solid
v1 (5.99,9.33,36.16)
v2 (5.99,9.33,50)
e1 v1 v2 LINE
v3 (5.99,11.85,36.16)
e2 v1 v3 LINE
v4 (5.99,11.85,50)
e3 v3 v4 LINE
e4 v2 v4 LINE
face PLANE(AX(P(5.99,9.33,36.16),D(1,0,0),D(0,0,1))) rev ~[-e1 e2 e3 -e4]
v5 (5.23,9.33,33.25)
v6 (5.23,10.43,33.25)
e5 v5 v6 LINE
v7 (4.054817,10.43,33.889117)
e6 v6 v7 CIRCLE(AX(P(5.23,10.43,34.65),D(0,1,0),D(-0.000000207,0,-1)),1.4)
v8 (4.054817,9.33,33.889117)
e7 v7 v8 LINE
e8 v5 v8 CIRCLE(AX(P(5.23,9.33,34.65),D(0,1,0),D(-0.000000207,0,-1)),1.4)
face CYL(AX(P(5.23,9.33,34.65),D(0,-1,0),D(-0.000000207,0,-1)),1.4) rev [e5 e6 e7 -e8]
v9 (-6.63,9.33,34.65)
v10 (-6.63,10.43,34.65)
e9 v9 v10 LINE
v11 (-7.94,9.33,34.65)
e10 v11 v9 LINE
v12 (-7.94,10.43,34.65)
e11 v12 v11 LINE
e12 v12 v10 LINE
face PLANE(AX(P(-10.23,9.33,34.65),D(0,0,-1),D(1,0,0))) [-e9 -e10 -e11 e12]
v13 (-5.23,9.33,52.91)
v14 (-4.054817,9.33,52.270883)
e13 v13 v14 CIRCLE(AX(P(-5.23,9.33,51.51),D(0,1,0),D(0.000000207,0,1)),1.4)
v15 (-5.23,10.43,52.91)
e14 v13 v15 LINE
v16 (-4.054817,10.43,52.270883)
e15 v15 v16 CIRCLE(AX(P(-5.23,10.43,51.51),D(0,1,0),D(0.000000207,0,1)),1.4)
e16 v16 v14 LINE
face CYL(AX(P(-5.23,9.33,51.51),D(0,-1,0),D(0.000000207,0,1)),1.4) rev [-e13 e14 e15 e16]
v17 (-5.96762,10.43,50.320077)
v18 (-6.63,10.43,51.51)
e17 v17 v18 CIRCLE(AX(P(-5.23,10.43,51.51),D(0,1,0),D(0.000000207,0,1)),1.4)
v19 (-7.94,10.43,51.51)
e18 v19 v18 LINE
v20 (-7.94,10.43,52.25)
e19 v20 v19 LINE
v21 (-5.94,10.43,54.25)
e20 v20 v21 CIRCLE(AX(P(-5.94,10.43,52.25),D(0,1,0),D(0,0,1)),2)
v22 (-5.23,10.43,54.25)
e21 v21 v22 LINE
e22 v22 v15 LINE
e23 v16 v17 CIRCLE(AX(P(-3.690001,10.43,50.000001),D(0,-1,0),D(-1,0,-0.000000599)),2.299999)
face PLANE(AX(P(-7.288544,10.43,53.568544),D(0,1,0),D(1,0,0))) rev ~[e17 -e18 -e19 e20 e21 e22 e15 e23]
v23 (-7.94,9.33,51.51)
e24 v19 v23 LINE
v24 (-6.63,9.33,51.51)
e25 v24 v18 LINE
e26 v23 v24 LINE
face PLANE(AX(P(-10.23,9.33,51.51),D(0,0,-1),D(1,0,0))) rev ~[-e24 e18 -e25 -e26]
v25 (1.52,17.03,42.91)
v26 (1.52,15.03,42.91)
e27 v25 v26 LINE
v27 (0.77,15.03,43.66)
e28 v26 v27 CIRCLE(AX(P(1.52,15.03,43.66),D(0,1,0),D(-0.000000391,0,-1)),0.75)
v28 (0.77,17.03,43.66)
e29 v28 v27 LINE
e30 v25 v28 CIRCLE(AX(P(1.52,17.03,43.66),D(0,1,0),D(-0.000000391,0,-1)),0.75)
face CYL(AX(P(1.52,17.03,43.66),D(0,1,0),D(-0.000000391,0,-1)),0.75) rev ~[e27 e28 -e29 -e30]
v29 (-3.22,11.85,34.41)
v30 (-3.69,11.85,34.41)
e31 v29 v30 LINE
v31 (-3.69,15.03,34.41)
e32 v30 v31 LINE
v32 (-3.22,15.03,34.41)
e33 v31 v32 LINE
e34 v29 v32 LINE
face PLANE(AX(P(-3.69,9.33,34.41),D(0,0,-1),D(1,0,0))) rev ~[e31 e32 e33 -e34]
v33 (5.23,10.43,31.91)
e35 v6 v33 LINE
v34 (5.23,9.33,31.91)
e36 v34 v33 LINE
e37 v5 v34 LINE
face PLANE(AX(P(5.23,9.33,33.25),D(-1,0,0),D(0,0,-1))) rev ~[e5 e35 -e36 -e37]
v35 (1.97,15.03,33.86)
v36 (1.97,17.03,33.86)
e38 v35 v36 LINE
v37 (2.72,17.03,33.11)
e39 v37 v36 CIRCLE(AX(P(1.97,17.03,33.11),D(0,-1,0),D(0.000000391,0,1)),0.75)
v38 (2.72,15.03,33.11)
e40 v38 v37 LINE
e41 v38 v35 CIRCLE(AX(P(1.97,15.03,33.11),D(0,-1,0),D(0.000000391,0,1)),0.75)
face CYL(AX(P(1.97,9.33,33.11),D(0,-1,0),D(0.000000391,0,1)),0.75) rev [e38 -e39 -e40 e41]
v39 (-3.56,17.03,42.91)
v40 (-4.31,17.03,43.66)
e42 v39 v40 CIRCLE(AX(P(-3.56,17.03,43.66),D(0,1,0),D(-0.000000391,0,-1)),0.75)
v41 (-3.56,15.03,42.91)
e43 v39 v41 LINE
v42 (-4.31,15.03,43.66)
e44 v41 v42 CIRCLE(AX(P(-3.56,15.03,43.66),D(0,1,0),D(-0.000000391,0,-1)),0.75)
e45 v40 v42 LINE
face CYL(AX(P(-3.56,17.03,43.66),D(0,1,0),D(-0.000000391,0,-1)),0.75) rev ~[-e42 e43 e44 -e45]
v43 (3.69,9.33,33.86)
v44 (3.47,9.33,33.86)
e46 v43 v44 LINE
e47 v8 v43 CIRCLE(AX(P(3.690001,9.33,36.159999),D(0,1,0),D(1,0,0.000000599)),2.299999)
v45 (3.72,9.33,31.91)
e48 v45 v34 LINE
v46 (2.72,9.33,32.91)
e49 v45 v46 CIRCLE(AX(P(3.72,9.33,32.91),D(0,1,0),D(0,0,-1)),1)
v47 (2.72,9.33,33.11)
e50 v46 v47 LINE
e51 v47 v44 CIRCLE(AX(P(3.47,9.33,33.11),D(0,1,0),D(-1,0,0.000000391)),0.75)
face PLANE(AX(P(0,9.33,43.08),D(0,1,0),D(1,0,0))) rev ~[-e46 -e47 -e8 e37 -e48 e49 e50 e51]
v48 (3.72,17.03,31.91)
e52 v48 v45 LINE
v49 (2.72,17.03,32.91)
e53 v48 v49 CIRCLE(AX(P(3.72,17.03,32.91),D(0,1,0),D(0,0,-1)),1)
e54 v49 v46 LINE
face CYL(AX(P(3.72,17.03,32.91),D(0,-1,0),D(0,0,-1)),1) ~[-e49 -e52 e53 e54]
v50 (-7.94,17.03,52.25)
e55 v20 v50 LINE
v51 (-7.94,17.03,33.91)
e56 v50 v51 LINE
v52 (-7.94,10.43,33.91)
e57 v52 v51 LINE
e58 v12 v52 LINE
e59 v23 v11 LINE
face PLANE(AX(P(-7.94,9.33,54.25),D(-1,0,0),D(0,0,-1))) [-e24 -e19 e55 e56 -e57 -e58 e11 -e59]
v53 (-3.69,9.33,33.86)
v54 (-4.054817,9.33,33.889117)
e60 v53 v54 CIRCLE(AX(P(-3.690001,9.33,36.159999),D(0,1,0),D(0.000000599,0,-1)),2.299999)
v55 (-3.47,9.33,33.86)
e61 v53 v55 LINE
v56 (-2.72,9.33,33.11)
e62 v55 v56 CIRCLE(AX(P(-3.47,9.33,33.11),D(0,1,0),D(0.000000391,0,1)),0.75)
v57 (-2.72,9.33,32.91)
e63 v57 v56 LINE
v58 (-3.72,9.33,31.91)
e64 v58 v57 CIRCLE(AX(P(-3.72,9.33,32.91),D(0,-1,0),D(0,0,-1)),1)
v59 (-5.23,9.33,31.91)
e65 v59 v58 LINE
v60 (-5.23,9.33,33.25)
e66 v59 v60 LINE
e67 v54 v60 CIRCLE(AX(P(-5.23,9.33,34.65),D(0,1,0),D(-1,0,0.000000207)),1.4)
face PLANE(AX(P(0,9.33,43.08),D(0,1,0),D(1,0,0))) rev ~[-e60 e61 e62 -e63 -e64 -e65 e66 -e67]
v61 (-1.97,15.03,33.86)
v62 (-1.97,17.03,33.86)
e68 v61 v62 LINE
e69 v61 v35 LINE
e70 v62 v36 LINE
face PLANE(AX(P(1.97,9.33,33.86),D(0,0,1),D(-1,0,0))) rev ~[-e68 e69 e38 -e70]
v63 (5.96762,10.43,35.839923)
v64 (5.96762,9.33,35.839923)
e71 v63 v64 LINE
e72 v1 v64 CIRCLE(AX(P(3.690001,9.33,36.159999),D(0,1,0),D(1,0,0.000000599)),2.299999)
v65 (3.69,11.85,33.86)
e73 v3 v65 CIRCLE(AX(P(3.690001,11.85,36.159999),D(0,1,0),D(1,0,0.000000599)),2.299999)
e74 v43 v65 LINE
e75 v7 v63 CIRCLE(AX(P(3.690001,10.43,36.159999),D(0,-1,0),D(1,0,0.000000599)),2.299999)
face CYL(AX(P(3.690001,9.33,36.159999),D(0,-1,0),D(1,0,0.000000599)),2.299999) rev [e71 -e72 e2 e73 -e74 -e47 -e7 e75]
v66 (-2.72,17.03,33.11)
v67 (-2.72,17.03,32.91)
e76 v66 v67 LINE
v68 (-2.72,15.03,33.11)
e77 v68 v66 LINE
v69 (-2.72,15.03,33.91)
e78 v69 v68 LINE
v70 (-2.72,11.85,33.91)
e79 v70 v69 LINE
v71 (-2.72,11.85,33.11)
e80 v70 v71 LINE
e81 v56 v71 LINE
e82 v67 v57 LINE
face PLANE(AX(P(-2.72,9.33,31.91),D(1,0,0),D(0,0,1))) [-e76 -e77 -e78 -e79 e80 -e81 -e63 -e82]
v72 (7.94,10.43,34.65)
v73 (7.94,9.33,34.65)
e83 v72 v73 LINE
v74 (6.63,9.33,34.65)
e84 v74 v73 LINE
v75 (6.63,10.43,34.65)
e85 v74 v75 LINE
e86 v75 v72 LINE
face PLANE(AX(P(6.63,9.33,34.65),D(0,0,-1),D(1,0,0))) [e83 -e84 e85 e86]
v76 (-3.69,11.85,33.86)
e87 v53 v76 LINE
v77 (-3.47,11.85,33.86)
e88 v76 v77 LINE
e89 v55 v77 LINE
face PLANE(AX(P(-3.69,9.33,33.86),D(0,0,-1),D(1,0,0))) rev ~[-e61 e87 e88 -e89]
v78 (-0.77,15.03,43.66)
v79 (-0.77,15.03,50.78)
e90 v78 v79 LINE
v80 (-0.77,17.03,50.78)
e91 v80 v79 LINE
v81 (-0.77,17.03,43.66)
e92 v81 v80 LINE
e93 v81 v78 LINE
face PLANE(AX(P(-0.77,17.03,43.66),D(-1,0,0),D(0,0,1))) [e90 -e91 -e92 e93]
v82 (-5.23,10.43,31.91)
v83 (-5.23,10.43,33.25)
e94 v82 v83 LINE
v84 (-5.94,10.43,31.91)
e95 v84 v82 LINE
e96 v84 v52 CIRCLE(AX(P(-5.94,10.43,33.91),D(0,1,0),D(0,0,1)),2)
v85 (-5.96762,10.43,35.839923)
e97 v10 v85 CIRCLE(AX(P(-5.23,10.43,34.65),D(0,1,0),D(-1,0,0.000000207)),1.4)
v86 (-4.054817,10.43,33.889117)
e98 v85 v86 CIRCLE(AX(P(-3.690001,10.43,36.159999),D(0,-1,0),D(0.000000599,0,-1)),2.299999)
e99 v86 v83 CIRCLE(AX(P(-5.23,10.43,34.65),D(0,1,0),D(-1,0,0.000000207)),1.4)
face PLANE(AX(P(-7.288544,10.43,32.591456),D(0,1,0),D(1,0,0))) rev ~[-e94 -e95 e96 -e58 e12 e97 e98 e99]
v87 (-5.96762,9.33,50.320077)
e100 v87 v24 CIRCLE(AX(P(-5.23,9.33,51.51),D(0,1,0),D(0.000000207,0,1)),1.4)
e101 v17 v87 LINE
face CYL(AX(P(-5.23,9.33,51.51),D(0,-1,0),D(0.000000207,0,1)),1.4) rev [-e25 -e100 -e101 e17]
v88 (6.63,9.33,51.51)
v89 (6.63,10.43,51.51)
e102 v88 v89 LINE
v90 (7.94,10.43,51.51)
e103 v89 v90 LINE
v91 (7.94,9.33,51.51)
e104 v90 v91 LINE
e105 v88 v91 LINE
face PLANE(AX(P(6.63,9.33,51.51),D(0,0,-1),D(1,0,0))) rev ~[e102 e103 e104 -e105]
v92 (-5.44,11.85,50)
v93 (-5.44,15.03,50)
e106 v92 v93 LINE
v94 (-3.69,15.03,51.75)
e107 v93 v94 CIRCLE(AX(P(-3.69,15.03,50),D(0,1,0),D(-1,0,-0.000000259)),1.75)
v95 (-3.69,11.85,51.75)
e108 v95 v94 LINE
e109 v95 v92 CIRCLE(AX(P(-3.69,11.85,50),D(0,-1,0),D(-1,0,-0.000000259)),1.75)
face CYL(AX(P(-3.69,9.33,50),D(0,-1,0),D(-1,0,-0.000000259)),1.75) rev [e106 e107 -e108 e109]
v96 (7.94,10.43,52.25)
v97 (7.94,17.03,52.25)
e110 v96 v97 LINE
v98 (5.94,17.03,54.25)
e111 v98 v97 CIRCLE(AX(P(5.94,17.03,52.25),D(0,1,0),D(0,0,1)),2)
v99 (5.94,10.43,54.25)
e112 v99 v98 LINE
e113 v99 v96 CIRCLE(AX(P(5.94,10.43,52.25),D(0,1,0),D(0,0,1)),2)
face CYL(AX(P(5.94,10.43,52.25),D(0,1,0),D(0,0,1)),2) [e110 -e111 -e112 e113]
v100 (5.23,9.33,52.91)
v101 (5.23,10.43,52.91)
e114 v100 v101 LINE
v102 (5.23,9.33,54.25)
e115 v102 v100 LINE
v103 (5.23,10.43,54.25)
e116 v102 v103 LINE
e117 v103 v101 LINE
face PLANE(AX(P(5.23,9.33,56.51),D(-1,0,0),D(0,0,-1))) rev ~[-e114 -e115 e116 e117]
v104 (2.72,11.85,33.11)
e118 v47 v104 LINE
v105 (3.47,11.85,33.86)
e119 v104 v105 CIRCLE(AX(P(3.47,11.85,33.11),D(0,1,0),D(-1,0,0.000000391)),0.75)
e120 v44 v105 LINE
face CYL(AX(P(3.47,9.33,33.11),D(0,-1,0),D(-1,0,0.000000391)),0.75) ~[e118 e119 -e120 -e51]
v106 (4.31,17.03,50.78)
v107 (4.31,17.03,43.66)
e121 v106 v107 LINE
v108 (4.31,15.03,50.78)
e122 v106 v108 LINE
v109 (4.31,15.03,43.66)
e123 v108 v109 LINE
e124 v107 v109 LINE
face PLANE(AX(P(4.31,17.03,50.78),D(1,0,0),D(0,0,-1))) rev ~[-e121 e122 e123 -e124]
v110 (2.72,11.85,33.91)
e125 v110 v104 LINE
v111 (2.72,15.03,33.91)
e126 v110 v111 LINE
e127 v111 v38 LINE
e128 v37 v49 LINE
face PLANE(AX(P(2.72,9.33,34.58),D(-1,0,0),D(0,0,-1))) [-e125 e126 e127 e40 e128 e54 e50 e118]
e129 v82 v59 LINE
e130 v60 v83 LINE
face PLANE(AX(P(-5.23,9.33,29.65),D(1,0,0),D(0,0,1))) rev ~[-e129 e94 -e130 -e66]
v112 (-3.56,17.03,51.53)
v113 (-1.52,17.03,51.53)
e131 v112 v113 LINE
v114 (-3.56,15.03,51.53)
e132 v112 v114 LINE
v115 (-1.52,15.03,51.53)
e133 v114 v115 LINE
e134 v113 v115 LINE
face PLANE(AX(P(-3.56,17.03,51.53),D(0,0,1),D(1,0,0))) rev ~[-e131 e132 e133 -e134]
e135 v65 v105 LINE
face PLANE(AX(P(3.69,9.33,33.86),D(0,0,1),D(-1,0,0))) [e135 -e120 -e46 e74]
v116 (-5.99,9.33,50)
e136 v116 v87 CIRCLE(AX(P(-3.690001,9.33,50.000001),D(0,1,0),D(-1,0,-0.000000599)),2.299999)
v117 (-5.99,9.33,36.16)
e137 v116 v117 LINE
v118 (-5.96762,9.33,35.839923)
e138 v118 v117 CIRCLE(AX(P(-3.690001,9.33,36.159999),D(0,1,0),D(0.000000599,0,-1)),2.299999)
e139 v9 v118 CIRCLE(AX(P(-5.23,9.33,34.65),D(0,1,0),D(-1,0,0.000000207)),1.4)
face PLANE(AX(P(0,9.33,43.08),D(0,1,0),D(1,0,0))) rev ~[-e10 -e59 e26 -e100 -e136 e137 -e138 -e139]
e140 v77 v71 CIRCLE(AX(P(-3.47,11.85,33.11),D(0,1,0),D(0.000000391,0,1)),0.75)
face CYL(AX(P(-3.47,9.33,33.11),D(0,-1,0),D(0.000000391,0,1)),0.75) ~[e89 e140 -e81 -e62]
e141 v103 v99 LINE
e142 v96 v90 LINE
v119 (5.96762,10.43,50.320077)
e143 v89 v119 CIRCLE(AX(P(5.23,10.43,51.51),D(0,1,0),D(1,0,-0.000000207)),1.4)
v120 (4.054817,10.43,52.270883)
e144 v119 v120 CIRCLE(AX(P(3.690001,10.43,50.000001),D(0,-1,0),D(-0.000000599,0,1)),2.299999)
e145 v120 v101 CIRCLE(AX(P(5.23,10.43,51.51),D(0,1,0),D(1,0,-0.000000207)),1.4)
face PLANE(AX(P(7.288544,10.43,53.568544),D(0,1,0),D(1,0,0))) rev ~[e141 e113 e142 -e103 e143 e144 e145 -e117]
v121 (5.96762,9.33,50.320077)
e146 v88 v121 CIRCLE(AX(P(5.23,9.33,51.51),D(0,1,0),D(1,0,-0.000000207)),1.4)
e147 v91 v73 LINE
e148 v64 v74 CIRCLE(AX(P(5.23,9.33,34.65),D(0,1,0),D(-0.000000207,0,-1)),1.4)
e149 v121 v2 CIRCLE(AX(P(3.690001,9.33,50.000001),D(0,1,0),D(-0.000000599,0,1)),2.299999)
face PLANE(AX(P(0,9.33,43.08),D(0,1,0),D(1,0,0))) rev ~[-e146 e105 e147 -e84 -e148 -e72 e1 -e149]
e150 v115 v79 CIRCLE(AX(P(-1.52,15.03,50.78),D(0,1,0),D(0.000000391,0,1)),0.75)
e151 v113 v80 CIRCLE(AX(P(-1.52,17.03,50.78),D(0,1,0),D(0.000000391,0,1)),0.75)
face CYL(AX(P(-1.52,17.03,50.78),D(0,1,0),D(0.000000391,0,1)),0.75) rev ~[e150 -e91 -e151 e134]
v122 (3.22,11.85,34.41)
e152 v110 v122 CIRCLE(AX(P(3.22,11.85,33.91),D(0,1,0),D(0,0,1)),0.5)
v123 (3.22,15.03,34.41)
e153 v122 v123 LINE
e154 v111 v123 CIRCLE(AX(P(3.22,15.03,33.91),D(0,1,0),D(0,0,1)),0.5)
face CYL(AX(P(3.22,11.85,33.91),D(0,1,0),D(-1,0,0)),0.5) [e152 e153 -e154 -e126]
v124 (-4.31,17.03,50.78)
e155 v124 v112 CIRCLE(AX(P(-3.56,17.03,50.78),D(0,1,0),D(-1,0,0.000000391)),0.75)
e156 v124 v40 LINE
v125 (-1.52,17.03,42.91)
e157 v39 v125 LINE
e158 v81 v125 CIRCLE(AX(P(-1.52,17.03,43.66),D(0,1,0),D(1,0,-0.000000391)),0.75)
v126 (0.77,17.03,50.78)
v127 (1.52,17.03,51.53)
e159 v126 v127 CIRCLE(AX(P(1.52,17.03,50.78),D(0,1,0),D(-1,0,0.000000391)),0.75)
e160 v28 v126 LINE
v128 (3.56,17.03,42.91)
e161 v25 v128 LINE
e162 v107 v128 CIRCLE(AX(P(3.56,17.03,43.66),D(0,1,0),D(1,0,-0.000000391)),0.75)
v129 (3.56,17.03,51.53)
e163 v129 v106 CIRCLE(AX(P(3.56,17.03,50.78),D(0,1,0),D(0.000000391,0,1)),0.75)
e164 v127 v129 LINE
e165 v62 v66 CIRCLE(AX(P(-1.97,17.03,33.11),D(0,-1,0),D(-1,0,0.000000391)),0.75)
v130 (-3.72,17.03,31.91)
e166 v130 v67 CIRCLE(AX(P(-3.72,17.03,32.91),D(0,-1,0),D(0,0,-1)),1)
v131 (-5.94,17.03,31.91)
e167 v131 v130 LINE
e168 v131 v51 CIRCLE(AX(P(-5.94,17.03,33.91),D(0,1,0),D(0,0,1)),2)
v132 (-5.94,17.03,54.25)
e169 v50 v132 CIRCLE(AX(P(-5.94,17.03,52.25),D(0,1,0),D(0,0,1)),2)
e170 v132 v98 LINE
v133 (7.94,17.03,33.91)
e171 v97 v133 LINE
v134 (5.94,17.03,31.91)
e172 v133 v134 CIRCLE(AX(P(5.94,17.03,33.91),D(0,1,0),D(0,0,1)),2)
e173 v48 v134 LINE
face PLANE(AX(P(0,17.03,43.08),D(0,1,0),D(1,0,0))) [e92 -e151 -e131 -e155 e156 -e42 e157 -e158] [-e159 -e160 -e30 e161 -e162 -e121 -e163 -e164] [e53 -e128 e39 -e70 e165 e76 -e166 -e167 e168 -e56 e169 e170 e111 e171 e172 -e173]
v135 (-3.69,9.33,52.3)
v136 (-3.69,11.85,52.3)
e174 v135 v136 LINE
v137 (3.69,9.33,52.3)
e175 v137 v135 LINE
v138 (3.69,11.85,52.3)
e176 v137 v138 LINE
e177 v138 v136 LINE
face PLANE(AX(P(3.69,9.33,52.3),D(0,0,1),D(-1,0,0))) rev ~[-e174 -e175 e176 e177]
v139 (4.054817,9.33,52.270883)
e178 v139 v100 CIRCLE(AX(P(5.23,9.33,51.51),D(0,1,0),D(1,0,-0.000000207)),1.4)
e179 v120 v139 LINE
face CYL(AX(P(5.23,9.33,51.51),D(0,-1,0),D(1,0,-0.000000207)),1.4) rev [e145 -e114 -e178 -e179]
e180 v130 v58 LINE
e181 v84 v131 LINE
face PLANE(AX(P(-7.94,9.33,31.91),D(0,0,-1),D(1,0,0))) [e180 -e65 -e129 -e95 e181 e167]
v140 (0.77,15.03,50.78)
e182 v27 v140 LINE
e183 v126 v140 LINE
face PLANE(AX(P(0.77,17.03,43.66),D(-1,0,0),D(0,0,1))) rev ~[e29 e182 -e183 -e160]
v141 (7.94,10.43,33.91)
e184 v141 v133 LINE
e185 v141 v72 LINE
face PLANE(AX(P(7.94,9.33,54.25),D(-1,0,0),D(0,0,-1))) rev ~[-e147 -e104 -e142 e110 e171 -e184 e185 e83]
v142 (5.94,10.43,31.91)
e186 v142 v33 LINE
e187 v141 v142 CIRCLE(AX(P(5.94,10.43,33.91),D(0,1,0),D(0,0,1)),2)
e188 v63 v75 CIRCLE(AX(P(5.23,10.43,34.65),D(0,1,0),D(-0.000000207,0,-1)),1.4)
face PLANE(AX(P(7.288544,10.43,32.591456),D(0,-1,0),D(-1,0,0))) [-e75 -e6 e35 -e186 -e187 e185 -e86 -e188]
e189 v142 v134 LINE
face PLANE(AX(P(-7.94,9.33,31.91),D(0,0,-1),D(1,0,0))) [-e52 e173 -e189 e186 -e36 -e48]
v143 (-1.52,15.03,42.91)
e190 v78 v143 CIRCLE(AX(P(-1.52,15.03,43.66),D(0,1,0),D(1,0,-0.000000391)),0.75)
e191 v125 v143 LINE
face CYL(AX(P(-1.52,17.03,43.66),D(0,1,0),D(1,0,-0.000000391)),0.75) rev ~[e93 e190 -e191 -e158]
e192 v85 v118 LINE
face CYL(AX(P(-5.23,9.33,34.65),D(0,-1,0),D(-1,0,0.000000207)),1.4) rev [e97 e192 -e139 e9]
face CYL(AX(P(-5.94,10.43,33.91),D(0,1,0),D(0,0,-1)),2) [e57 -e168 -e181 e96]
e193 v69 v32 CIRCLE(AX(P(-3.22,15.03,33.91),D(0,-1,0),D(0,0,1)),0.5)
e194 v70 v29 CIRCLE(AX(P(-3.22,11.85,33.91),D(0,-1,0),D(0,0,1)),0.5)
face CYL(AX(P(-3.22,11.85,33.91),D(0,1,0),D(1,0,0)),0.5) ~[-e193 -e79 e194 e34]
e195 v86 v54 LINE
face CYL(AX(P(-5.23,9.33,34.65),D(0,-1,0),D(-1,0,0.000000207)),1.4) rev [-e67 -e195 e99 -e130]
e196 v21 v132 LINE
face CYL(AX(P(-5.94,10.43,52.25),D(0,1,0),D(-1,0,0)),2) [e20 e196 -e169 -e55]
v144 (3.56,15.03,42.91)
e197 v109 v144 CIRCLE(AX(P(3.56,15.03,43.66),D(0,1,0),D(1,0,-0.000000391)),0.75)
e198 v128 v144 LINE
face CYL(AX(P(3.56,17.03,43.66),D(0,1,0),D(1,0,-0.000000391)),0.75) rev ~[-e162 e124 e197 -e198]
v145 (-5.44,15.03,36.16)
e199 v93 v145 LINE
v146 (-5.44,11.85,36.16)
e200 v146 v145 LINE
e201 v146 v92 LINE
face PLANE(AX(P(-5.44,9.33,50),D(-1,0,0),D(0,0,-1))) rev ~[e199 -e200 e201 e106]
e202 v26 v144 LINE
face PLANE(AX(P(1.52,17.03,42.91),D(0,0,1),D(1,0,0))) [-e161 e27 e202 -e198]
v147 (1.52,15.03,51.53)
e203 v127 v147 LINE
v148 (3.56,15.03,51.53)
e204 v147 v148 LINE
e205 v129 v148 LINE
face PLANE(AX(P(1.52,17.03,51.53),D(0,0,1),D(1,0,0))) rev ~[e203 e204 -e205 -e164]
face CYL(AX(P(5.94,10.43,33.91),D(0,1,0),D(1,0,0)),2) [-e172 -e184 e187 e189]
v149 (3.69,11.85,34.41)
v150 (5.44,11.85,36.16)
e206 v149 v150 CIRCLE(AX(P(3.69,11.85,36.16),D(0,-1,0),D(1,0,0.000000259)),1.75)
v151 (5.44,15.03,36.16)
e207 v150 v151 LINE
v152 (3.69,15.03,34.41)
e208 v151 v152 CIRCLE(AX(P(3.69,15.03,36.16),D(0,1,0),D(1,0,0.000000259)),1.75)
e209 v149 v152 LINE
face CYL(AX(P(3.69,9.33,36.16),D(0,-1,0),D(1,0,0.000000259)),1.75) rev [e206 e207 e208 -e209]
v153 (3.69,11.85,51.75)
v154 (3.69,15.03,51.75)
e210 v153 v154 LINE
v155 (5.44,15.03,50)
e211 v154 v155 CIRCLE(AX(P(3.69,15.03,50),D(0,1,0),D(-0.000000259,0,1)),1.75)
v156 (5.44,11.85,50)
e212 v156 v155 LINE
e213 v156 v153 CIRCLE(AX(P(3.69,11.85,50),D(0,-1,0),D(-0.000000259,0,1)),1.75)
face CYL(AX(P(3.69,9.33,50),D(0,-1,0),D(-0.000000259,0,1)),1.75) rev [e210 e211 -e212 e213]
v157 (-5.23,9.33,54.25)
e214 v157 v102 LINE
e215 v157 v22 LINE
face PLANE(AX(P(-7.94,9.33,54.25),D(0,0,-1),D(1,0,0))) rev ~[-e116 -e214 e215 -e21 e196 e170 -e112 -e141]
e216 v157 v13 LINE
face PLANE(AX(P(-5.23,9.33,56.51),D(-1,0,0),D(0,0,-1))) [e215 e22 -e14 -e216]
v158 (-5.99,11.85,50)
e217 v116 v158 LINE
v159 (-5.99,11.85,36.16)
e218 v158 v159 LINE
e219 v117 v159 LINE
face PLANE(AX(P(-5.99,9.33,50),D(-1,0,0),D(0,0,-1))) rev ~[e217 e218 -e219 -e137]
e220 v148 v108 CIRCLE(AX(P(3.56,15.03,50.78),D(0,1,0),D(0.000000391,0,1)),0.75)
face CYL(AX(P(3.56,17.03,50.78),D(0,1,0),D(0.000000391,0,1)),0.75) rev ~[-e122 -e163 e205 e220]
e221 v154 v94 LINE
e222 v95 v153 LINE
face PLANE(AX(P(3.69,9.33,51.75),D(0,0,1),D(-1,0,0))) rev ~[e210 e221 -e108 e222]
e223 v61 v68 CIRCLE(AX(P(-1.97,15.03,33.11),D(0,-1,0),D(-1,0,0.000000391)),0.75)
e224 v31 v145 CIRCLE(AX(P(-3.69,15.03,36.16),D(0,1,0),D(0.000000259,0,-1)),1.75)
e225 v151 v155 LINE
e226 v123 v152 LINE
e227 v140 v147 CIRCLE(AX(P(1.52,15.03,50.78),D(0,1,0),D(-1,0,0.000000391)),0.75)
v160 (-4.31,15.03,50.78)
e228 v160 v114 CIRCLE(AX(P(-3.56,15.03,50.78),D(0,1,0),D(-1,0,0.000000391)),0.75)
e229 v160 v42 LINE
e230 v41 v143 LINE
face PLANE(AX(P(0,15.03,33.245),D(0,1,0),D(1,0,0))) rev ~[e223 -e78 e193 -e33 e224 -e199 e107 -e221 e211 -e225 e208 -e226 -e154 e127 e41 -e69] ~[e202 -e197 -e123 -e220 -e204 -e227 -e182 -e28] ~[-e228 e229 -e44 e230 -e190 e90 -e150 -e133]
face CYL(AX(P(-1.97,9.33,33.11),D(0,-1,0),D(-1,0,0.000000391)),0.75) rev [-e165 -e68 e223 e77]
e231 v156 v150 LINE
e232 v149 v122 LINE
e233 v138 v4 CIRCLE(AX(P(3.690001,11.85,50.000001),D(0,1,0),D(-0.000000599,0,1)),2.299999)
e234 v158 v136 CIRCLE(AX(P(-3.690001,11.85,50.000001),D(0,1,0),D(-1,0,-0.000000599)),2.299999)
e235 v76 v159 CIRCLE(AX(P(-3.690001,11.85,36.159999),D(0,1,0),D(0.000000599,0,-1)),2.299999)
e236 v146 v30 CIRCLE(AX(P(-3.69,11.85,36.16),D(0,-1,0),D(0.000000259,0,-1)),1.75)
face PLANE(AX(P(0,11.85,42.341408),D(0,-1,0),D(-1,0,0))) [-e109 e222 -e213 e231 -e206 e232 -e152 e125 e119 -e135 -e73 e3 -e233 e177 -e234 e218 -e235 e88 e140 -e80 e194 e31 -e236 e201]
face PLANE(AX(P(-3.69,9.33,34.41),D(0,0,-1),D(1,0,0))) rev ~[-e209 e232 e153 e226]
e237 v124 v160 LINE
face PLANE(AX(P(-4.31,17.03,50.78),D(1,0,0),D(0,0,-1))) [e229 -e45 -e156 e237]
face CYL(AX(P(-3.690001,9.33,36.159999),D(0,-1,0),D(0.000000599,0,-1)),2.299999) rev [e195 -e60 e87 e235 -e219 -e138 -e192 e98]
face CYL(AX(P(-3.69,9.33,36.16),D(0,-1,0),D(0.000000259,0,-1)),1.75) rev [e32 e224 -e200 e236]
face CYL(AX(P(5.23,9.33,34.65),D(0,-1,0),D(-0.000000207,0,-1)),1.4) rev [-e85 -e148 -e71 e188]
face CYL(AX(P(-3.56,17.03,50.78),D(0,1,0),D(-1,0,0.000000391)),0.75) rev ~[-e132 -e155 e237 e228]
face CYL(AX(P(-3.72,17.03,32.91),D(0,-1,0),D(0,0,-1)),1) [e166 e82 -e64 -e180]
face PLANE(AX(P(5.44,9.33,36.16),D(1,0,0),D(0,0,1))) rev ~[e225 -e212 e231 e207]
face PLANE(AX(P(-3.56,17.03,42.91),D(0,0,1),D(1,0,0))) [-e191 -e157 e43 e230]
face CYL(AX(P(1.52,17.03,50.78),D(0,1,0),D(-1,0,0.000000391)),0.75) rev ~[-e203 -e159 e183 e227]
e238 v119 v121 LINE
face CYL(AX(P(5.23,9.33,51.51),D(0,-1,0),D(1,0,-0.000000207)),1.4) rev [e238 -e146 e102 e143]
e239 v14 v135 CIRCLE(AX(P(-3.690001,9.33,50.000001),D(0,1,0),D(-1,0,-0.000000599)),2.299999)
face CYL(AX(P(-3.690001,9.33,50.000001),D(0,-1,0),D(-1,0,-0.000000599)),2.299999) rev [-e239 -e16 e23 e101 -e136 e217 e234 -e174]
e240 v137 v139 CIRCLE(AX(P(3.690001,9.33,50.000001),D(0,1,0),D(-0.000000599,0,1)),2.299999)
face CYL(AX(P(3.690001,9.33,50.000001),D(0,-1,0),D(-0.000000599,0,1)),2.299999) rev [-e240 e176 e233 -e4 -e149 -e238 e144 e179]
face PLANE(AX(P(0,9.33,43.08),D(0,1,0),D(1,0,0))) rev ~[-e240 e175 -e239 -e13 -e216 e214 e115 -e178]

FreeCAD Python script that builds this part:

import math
import FreeCAD as App
import Part
import Sketcher

V = App.Vector


def edges_at(feature, points):
    """Names of the edges that pass closest to the given points."""
    edges = feature.Shape.Edges
    near = lambda p: min(range(len(edges)), key=lambda i: edges[i].distToShape(Part.Vertex(*p))[0])
    return sorted({f"Edge{near(p) + 1}" for p in points})


def add_polygon(sketch, points):
    """Adds a closed chain of lines whose ends are joined by coincident constraints."""
    first, n = sketch.GeometryCount, len(points)
    for a, b in zip(points, points[1:] + points[:1]):
        sketch.addGeometry(Part.LineSegment(App.Vector(*a, 0), App.Vector(*b, 0)), False)
    for i in range(n):
        sketch.addConstraint(Sketcher.Constraint("Coincident", first + i, 2, first + (i + 1) % n, 1))

doc = App.newDocument("Part")
body = doc.addObject("PartDesign::Body", "Body")

sketch1 = doc.addObject("Sketcher::SketchObject", "Sketch")
body.addObject(sketch1)
sketch1.AttachmentSupport = (doc.XY_Plane, [""])
sketch1.MapMode = "FlatFace"
add_polygon(sketch1, [(-8, 11), (-8, -11), (8, -11), (8, 11)])
sketch1.addConstraint(Sketcher.Constraint("Vertical", 0))
sketch1.addConstraint(Sketcher.Constraint("Horizontal", 1))
sketch1.addConstraint(Sketcher.Constraint("Vertical", 2))
sketch1.addConstraint(Sketcher.Constraint("Horizontal", 3))
sketch1.addConstraint(Sketcher.Constraint("Symmetric", 0, 2, 2, 2, -1, 1))
sketch1.addConstraint(Sketcher.Constraint("DistanceX", 1, 1, 1, 2, 15.88))
sketch1.addConstraint(Sketcher.Constraint("DistanceY", 0, 2, 0, 1, 22.34))
pad1 = doc.addObject("PartDesign::Pad", "Pad")
body.addObject(pad1)
pad1.Profile = sketch1
pad1.Length = 7.7

sketch2 = doc.addObject("Sketcher::SketchObject", "Sketch001")
body.addObject(sketch2)
sketch2.AttachmentSupport = (doc.XY_Plane, [""])
sketch2.MapMode = "FlatFace"
sketch2.addGeometry(Part.LineSegment(V(3.7, 8.7, 0), V(-3.7, 8.7, 0)), False)
sketch2.addGeometry(Part.ArcOfCircle(Part.Circle(V(-3.7, 6.9, 0), V(0, 0, 1), 1.7), math.radians(90), math.radians(180)), False)
sketch2.addGeometry(Part.LineSegment(V(-5.4, 6.9, 0), V(-5.4, -6.9, 0)), False)
sketch2.addGeometry(Part.ArcOfCircle(Part.Circle(V(-3.7, -6.9, 0), V(0, 0, 1), 1.7), math.radians(180), math.radians(270)), False)
sketch2.addGeometry(Part.LineSegment(V(-3.7, -8.7, 0), V(3.7, -8.7, 0)), False)
sketch2.addGeometry(Part.ArcOfCircle(Part.Circle(V(3.7, -6.9, 0), V(0, 0, 1), 1.7), math.radians(-90), math.radians(0)), False)
sketch2.addGeometry(Part.LineSegment(V(5.4, -6.9, 0), V(5.4, 6.9, 0)), False)
sketch2.addGeometry(Part.ArcOfCircle(Part.Circle(V(3.7, 6.9, 0), V(0, 0, 1), 1.7), math.radians(0), math.radians(90)), False)
sketch2.addConstraint(Sketcher.Constraint("Tangent", 0, 2, 1, 1))
sketch2.addConstraint(Sketcher.Constraint("Tangent", 1, 2, 2, 1))
sketch2.addConstraint(Sketcher.Constraint("Tangent", 2, 2, 3, 1))
sketch2.addConstraint(Sketcher.Constraint("Tangent", 3, 2, 4, 1))
sketch2.addConstraint(Sketcher.Constraint("Tangent", 4, 2, 5, 1))
sketch2.addConstraint(Sketcher.Constraint("Tangent", 5, 2, 6, 1))
sketch2.addConstraint(Sketcher.Constraint("Tangent", 6, 2, 7, 1))
sketch2.addConstraint(Sketcher.Constraint("Tangent", 7, 2, 0, 1))
sketch2.addConstraint(Sketcher.Constraint("Horizontal", 0))
sketch2.addConstraint(Sketcher.Constraint("Vertical", 2))
sketch2.addConstraint(Sketcher.Constraint("Horizontal", 4))
sketch2.addConstraint(Sketcher.Constraint("Vertical", 6))
sketch2.addConstraint(Sketcher.Constraint("Equal", 1, 3))
sketch2.addConstraint(Sketcher.Constraint("Equal", 3, 5))
sketch2.addConstraint(Sketcher.Constraint("Equal", 5, 7))
sketch2.addConstraint(Sketcher.Constraint("Symmetric", 1, 3, 5, 3, -1, 1))
sketch2.addConstraint(Sketcher.Constraint("Radius", 1, 1.75))
sketch2.addConstraint(Sketcher.Constraint("DistanceX", 0, 2, 0, 1, 7.38))
sketch2.addConstraint(Sketcher.Constraint("DistanceY", 2, 2, 2, 1, 13.84))
pocket1 = doc.addObject("PartDesign::Pocket", "Pocket")
body.addObject(pocket1)
pocket1.Profile = sketch2
pocket1.Length = 5.7
pocket1.Reversed = True

sketch3 = doc.addObject("Sketcher::SketchObject", "Sketch002")
body.addObject(sketch3)
sketch3.AttachmentSupport = (doc.XY_Plane, [""])
sketch3.MapMode = "FlatFace"
sketch3.addGeometry(Part.LineSegment(V(5.99, -6.92, 0), V(5.99, 6.92, 0)), False)
sketch3.addGeometry(Part.ArcOfCircle(Part.Circle(V(3.69, 6.92, 0), V(0, 0, 1), 2.3), math.radians(0), math.radians(90)), False)
sketch3.addGeometry(Part.LineSegment(V(3.69, 9.22, 0), V(3.47, 9.22, 0)), False)
sketch3.addGeometry(Part.ArcOfCircle(Part.Circle(V(3.47, 9.97, 0), V(0, 0, 1), 0.75), math.radians(-180), math.radians(-90)), False)
sketch3.addGeometry(Part.LineSegment(V(2.72, 9.97, 0), V(2.72, 11.17, 0)), False)
sketch3.addGeometry(Part.LineSegment(V(2.72, 11.17, 0), V(-2.72, 11.17, 0)), False)
sketch3.addGeometry(Part.LineSegment(V(-2.72, 11.17, 0), V(-2.72, 9.97, 0)), False)
sketch3.addGeometry(Part.ArcOfCircle(Part.Circle(V(-3.47, 9.97, 0), V(0, 0, 1), 0.75), math.radians(-90), math.radians(0)), False)
sketch3.addGeometry(Part.LineSegment(V(-3.47, 9.22, 0), V(-3.69, 9.22, 0)), False)
sketch3.addGeometry(Part.ArcOfCircle(Part.Circle(V(-3.69, 6.92, 0), V(0, 0, 1), 2.3), math.radians(90), math.radians(180)), False)
sketch3.addGeometry(Part.LineSegment(V(-5.99, 6.92, 0), V(-5.99, -6.92, 0)), False)
sketch3.addGeometry(Part.ArcOfCircle(Part.Circle(V(-3.69, -6.92, 0), V(0, 0, 1), 2.3), math.radians(180), math.radians(270)), False)
sketch3.addGeometry(Part.LineSegment(V(-3.69, -9.22, 0), V(3.69, -9.22, 0)), False)
sketch3.addGeometry(Part.ArcOfCircle(Part.Circle(V(3.69, -6.92, 0), V(0, 0, 1), 2.3), math.radians(-90), math.radians(0)), False)
sketch3.addConstraint(Sketcher.Constraint("Tangent", 0, 2, 1, 1))
sketch3.addConstraint(Sketcher.Constraint("Tangent", 1, 2, 2, 1))
sketch3.addConstraint(Sketcher.Constraint("Tangent", 2, 2, 3, 2))
sketch3.addConstraint(Sketcher.Constraint("Tangent", 3, 1, 4, 1))
sketch3.addConstraint(Sketcher.Constraint("Coincident", 4, 2, 5, 1))
sketch3.addConstraint(Sketcher.Constraint("Coincident", 5, 2, 6, 1))
sketch3.addConstraint(Sketcher.Constraint("Tangent", 6, 2, 7, 2))
sketch3.addConstraint(Sketcher.Constraint("Tangent", 7, 1, 8, 1))
sketch3.addConstraint(Sketcher.Constraint("Tangent", 8, 2, 9, 1))
sketch3.addConstraint(Sketcher.Constraint("Tangent", 9, 2, 10, 1))
sketch3.addConstraint(Sketcher.Constraint("Tangent", 10, 2, 11, 1))
sketch3.addConstraint(Sketcher.Constraint("Tangent", 11, 2, 12, 1))
sketch3.addConstraint(Sketcher.Constraint("Tangent", 12, 2, 13, 1))
sketch3.addConstraint(Sketcher.Constraint("Tangent", 13, 2, 0, 1))
sketch3.addConstraint(Sketcher.Constraint("Vertical", 0))
sketch3.addConstraint(Sketcher.Constraint("Horizontal", 2))
sketch3.addConstraint(Sketcher.Constraint("Vertical", 4))
sketch3.addConstraint(Sketcher.Constraint("Horizontal", 5))
sketch3.addConstraint(Sketcher.Constraint("Vertical", 6))
sketch3.addConstraint(Sketcher.Constraint("Horizontal", 8))
sketch3.addConstraint(Sketcher.Constraint("Vertical", 10))
sketch3.addConstraint(Sketcher.Constraint("Horizontal", 12))
sketch3.addConstraint(Sketcher.Constraint("Equal", 3, 7))
sketch3.addConstraint(Sketcher.Constraint("Equal", 1, 9))
sketch3.addConstraint(Sketcher.Constraint("Equal", 9, 11))
sketch3.addConstraint(Sketcher.Constraint("Equal", 11, 13))
sketch3.addConstraint(Sketcher.Constraint("Symmetric", 1, 3, 11, 3, -1, 1))
sketch3.addConstraint(Sketcher.Constraint("Symmetric", 3, 3, 7, 3, -2))
sketch3.addConstraint(Sketcher.Constraint("Radius", 1, 2.299999))
sketch3.addConstraint(Sketcher.Constraint("Radius", 3, 0.75))
sketch3.addConstraint(Sketcher.Constraint("DistanceY", 4, 1, 4, 2, 1.2))
sketch3.addConstraint(Sketcher.Constraint("DistanceX", 2, 2, 2, 1, 0.22))
sketch3.addConstraint(Sketcher.Constraint("DistanceX", 5, 2, 5, 1, 5.44))
sketch3.addConstraint(Sketcher.Constraint("DistanceY", 0, 1, 0, 2, 13.84))
pocket2 = doc.addObject("PartDesign::Pocket", "Pocket001")
body.addObject(pocket2)
pocket2.Profile = sketch3
pocket2.Length = 2.52
pocket2.Reversed = True

sketch4 = doc.addObject("Sketcher::SketchObject", "Sketch003")
body.addObject(sketch4)
sketch4.AttachmentSupport = (doc.XY_Plane, [""])
sketch4.MapMode = "FlatFace"
add_polygon(sketch4, [(-2.7, 11.2), (-2.7, 8.5), (2.7, 8.5), (2.7, 11.2)])
sketch4.addConstraint(Sketcher.Constraint("Vertical", 0))
sketch4.addConstraint(Sketcher.Constraint("Horizontal", 1))
sketch4.addConstraint(Sketcher.Constraint("Vertical", 2))
sketch4.addConstraint(Sketcher.Constraint("Horizontal", 3))
sketch4.addConstraint(Sketcher.Constraint("DistanceX", 1, 1, 1, 2, 5.44))
sketch4.addConstraint(Sketcher.Constraint("DistanceY", 0, 2, 0, 1, 2.67))
sketch4.addConstraint(Sketcher.Constraint("DistanceY", -1, 1, 0, 2, 8.5))
sketch4.addConstraint(Sketcher.Constraint("DistanceX", 0, 2, -1, 1, 2.72))
pocket3 = doc.addObject("PartDesign::Pocket", "Pocket002")
body.addObject(pocket3)
pocket3.Profile = sketch4
pocket3.Length = 5.7
pocket3.Reversed = True

sketch5 = doc.addObject("Sketcher::SketchObject", "Sketch004")
body.addObject(sketch5)
sketch5.AttachmentSupport = (doc.XY_Plane, [""])
sketch5.MapMode = "FlatFace"
sketch5.addGeometry(Part.LineSegment(V(2.7, 10, 0), V(2.7, 11.2, 0)), False)
sketch5.addGeometry(Part.LineSegment(V(2.7, 11.2, 0), V(-2.7, 11.2, 0)), False)
sketch5.addGeometry(Part.LineSegment(V(-2.7, 11.2, 0), V(-2.7, 10, 0)), False)
sketch5.addGeometry(Part.ArcOfCircle(Part.Circle(V(-2, 10, 0), V(0, 0, 1), 0.8), math.radians(-180), math.radians(-90)), False)
sketch5.addGeometry(Part.LineSegment(V(-2, 9.2, 0), V(2, 9.2, 0)), False)
sketch5.addGeometry(Part.ArcOfCircle(Part.Circle(V(2, 10, 0), V(0, 0, 1), 0.8), math.radians(-90), math.radians(0)), False)
sketch5.addConstraint(Sketcher.Constraint("Coincident", 0, 2, 1, 1))
sketch5.addConstraint(Sketcher.Constraint("Coincident", 1, 2, 2, 1))
sketch5.addConstraint(Sketcher.Constraint("Tangent", 2, 2, 3, 1))
sketch5.addConstraint(Sketcher.Constraint("Tangent", 3, 2, 4, 1))
sketch5.addConstraint(Sketcher.Constraint("Tangent", 4, 2, 5, 1))
sketch5.addConstraint(Sketcher.Constraint("Tangent", 5, 2, 0, 1))
sketch5.addConstraint(Sketcher.Constraint("Vertical", 0))
sketch5.addConstraint(Sketcher.Constraint("Horizontal", 1))
sketch5.addConstraint(Sketcher.Constraint("Vertical", 2))
sketch5.addConstraint(Sketcher.Constraint("Horizontal", 4))
sketch5.addConstraint(Sketcher.Constraint("Equal", 3, 5))
sketch5.addConstraint(Sketcher.Constraint("Radius", 3, 0.75))
sketch5.addConstraint(Sketcher.Constraint("DistanceY", 0, 1, 0, 2, 1.2))
sketch5.addConstraint(Sketcher.Constraint("DistanceX", 1, 2, 1, 1, 5.44))
sketch5.addConstraint(Sketcher.Constraint("DistanceX", 3, 3, -1, 1, 1.97))
sketch5.addConstraint(Sketcher.Constraint("DistanceY", -1, 1, 3, 3, 9.97))
pocket4 = doc.addObject("PartDesign::Pocket", "Pocket003")
body.addObject(pocket4)
pocket4.Profile = sketch5
pocket4.Type = "ThroughAll"
pocket4.Reversed = True

sketch6 = doc.addObject("Sketcher::SketchObject", "Sketch005")
body.addObject(sketch6)
sketch6.AttachmentSupport = (doc.XY_Plane, [""])
sketch6.MapMode = "FlatFace"
sketch6.AttachmentOffset = App.Placement(V(0, 0, 7.7), App.Rotation())
sketch6.addGeometry(Part.LineSegment(V(-0.8, -7.7, 0), V(-0.8, -0.6, 0)), False)
sketch6.addGeometry(Part.ArcOfCircle(Part.Circle(V(-1.5, -0.6, 0), V(0, 0, 1), 0.8), math.radians(0), math.radians(90)), False)
sketch6.addGeometry(Part.LineSegment(V(-1.5, 0.2, 0), V(-3.6, 0.2, 0)), False)
sketch6.addGeometry(Part.ArcOfCircle(Part.Circle(V(-3.6, -0.6, 0), V(0, 0, 1), 0.8), math.radians(90), math.radians(180)), False)
sketch6.addGeometry(Part.LineSegment(V(-4.3, -0.6, 0), V(-4.3, -7.7, 0)), False)
sketch6.addGeometry(Part.ArcOfCircle(Part.Circle(V(-3.6, -7.7, 0), V(0, 0, 1), 0.8), math.radians(-180), math.radians(-90)), False)
sketch6.addGeometry(Part.LineSegment(V(-3.6, -8.4, 0), V(-1.5, -8.4, 0)), False)
sketch6.addGeometry(Part.ArcOfCircle(Part.Circle(V(-1.5, -7.7, 0), V(0, 0, 1), 0.8), math.radians(-90), math.radians(0)), False)
sketch6.addGeometry(Part.LineSegment(V(0.8, -0.6, 0), V(0.8, -7.7, 0)), False)
sketch6.addGeometry(Part.ArcOfCircle(Part.Circle(V(1.5, -7.7, 0), V(0, 0, 1), 0.8), math.radians(-180), math.radians(-90)), False)
sketch6.addGeometry(Part.LineSegment(V(1.5, -8.4, 0), V(3.6, -8.4, 0)), False)
sketch6.addGeometry(Part.ArcOfCircle(Part.Circle(V(3.6, -7.7, 0), V(0, 0, 1), 0.8), math.radians(-90), math.radians(0)), False)
sketch6.addGeometry(Part.LineSegment(V(4.3, -7.7, 0), V(4.3, -0.6, 0)), False)
sketch6.addGeometry(Part.ArcOfCircle(Part.Circle(V(3.6, -0.6, 0), V(0, 0, 1), 0.8), math.radians(0), math.radians(90)), False)
sketch6.addGeometry(Part.LineSegment(V(3.6, 0.2, 0), V(1.5, 0.2, 0)), False)
sketch6.addGeometry(Part.ArcOfCircle(Part.Circle(V(1.5, -0.6, 0), V(0, 0, 1), 0.8), math.radians(90), math.radians(180)), False)
sketch6.addConstraint(Sketcher.Constraint("Tangent", 0, 2, 1, 1))
sketch6.addConstraint(Sketcher.Constraint("Tangent", 1, 2, 2, 1))
sketch6.addConstraint(Sketcher.Constraint("Tangent", 2, 2, 3, 1))
sketch6.addConstraint(Sketcher.Constraint("Tangent", 3, 2, 4, 1))
sketch6.addConstraint(Sketcher.Constraint("Tangent", 4, 2, 5, 1))
sketch6.addConstraint(Sketcher.Constraint("Tangent", 5, 2, 6, 1))
sketch6.addConstraint(Sketcher.Constraint("Tangent", 6, 2, 7, 1))
sketch6.addConstraint(Sketcher.Constraint("Tangent", 7, 2, 0, 1))
sketch6.addConstraint(Sketcher.Constraint("Tangent", 8, 2, 9, 1))
sketch6.addConstraint(Sketcher.Constraint("Tangent", 9, 2, 10, 1))
sketch6.addConstraint(Sketcher.Constraint("Tangent", 10, 2, 11, 1))
sketch6.addConstraint(Sketcher.Constraint("Tangent", 11, 2, 12, 1))
sketch6.addConstraint(Sketcher.Constraint("Tangent", 12, 2, 13, 1))
sketch6.addConstraint(Sketcher.Constraint("Tangent", 13, 2, 14, 1))
sketch6.addConstraint(Sketcher.Constraint("Tangent", 14, 2, 15, 1))
sketch6.addConstraint(Sketcher.Constraint("Tangent", 15, 2, 8, 1))
sketch6.addConstraint(Sketcher.Constraint("Vertical", 0))
sketch6.addConstraint(Sketcher.Constraint("Horizontal", 2))
sketch6.addConstraint(Sketcher.Constraint("Vertical", 4))
sketch6.addConstraint(Sketcher.Constraint("Horizontal", 6))
sketch6.addConstraint(Sketcher.Constraint("Vertical", 8))
sketch6.addConstraint(Sketcher.Constraint("Horizontal", 10))
sketch6.addConstraint(Sketcher.Constraint("Vertical", 12))
sketch6.addConstraint(Sketcher.Constraint("Horizontal", 14))
sketch6.addConstraint(Sketcher.Constraint("Equal", 1, 3))
sketch6.addConstraint(Sketcher.Constraint("Equal", 3, 5))
sketch6.addConstraint(Sketcher.Constraint("Equal", 5, 7))
sketch6.addConstraint(Sketcher.Constraint("Equal", 7, 9))
sketch6.addConstraint(Sketcher.Constraint("Equal", 9, 11))
sketch6.addConstraint(Sketcher.Constraint("Equal", 11, 13))
sketch6.addConstraint(Sketcher.Constraint("Equal", 13, 15))
sketch6.addConstraint(Sketcher.Constraint("Symmetric", 7, 3, 9, 3, -2))
sketch6.addConstraint(Sketcher.Constraint("Symmetric", 3, 3, 13, 3, -2))
sketch6.addConstraint(Sketcher.Constraint("Radius", 1, 0.75))
sketch6.addConstraint(Sketcher.Constraint("DistanceX", 2, 2, 2, 1, 2.04))
sketch6.addConstraint(Sketcher.Constraint("DistanceY", 0, 1, 0, 2, 7.12))
sketch6.addConstraint(Sketcher.Constraint("DistanceY", 5, 3, -1, 1, 7.7))
sketch6.addConstraint(Sketcher.Constraint("DistanceX", 1, 3, -1, 1, 1.52))
pocket5 = doc.addObject("PartDesign::Pocket", "Pocket004")
body.addObject(pocket5)
pocket5.Profile = sketch6
pocket5.Length = 2

sketch7 = doc.addObject("Sketcher::SketchObject", "Sketch006")
body.addObject(sketch7)
sketch7.AttachmentSupport = (doc.XY_Plane, [""])
sketch7.MapMode = "FlatFace"
sketch7.addGeometry(Part.LineSegment(V(10.2, 13.4, 0), V(5.2, 13.4, 0)), False)
sketch7.addGeometry(Part.LineSegment(V(5.2, 13.4, 0), V(5.2, 9.8, 0)), False)
sketch7.addGeometry(Part.ArcOfCircle(Part.Circle(V(5.2, 8.4, 0), V(0, 0, 1), 1.4), math.radians(90), math.radians(360)), False)
sketch7.addGeometry(Part.LineSegment(V(6.6, 8.4, 0), V(10.2, 8.4, 0)), False)
sketch7.addGeometry(Part.LineSegment(V(10.2, 8.4, 0), V(10.2, 13.4, 0)), False)
sketch7.addGeometry(Part.LineSegment(V(-5.2, 13.4, 0), V(-10.2, 13.4, 0)), False)
sketch7.addGeometry(Part.LineSegment(V(-10.2, 13.4, 0), V(-10.2, 8.4, 0)), False)
sketch7.addGeometry(Part.LineSegment(V(-10.2, 8.4, 0), V(-6.6, 8.4, 0)), False)
sketch7.addGeometry(Part.ArcOfCircle(Part.Circle(V(-5.2, 8.4, 0), V(0, 0, 1), 1.4), math.radians(-180), math.radians(90)), False)
sketch7.addGeometry(Part.LineSegment(V(-5.2, 9.8, 0), V(-5.2, 13.4, 0)), False)
sketch7.addGeometry(Part.LineSegment(V(5.2, -13.4, 0), V(10.2, -13.4, 0)), False)
sketch7.addGeometry(Part.LineSegment(V(10.2, -13.4, 0), V(10.2, -8.4, 0)), False)
sketch7.addGeometry(Part.LineSegment(V(10.2, -8.4, 0), V(6.6, -8.4, 0)), False)
sketch7.addGeometry(Part.ArcOfCircle(Part.Circle(V(5.2, -8.4, 0), V(0, 0, 1), 1.4), math.radians(0), math.radians(270)), False)
sketch7.addGeometry(Part.LineSegment(V(5.2, -9.8, 0), V(5.2, -13.4, 0)), False)
sketch7.addGeometry(Part.LineSegment(V(-10.2, -13.4, 0), V(-5.2, -13.4, 0)), False)
sketch7.addGeometry(Part.LineSegment(V(-5.2, -13.4, 0), V(-5.2, -9.8, 0)), False)
sketch7.addGeometry(Part.ArcOfCircle(Part.Circle(V(-5.2, -8.4, 0), V(0, 0, 1), 1.4), math.radians(-90), math.radians(180)), False)
sketch7.addGeometry(Part.LineSegment(V(-6.6, -8.4, 0), V(-10.2, -8.4, 0)), False)
sketch7.addGeometry(Part.LineSegment(V(-10.2, -8.4, 0), V(-10.2, -13.4, 0)), False)
sketch7.addConstraint(Sketcher.Constraint("Coincident", 0, 2, 1, 1))
sketch7.addConstraint(Sketcher.Constraint("Coincident", 1, 2, 2, 1))
sketch7.addConstraint(Sketcher.Constraint("Coincident", 2, 2, 3, 1))
sketch7.addConstraint(Sketcher.Constraint("Coincident", 3, 2, 4, 1))
sketch7.addConstraint(Sketcher.Constraint("Coincident", 4, 2, 0, 1))
sketch7.addConstraint(Sketcher.Constraint("Coincident", 5, 2, 6, 1))
sketch7.addConstraint(Sketcher.Constraint("Coincident", 6, 2, 7, 1))
sketch7.addConstraint(Sketcher.Constraint("Coincident", 7, 2, 8, 1))
sketch7.addConstraint(Sketcher.Constraint("Coincident", 8, 2, 9, 1))
sketch7.addConstraint(Sketcher.Constraint("Coincident", 9, 2, 5, 1))
sketch7.addConstraint(Sketcher.Constraint("Coincident", 10, 2, 11, 1))
sketch7.addConstraint(Sketcher.Constraint("Coincident", 11, 2, 12, 1))
sketch7.addConstraint(Sketcher.Constraint("Coincident", 12, 2, 13, 1))
sketch7.addConstraint(Sketcher.Constraint("Coincident", 13, 2, 14, 1))
sketch7.addConstraint(Sketcher.Constraint("Coincident", 14, 2, 10, 1))
sketch7.addConstraint(Sketcher.Constraint("Coincident", 15, 2, 16, 1))
sketch7.addConstraint(Sketcher.Constraint("Coincident", 16, 2, 17, 1))
sketch7.addConstraint(Sketcher.Constraint("Coincident", 17, 2, 18, 1))
sketch7.addConstraint(Sketcher.Constraint("Coincident", 18, 2, 19, 1))
sketch7.addConstraint(Sketcher.Constraint("Coincident", 19, 2, 15, 1))
sketch7.addConstraint(Sketcher.Constraint("Horizontal", 0))
sketch7.addConstraint(Sketcher.Constraint("Vertical", 1))
sketch7.addConstraint(Sketcher.Constraint("Horizontal", 3))
sketch7.addConstraint(Sketcher.Constraint("Vertical", 4))
sketch7.addConstraint(Sketcher.Constraint("Horizontal", 5))
sketch7.addConstraint(Sketcher.Constraint("Vertical", 6))
sketch7.addConstraint(Sketcher.Constraint("Horizontal", 7))
sketch7.addConstraint(Sketcher.Constraint("Vertical", 9))
sketch7.addConstraint(Sketcher.Constraint("Horizontal", 10))
sketch7.addConstraint(Sketcher.Constraint("Vertical", 11))
sketch7.addConstraint(Sketcher.Constraint("Horizontal", 12))
sketch7.addConstraint(Sketcher.Constraint("Vertical", 14))
sketch7.addConstraint(Sketcher.Constraint("Horizontal", 15))
sketch7.addConstraint(Sketcher.Constraint("Vertical", 16))
sketch7.addConstraint(Sketcher.Constraint("Horizontal", 18))
sketch7.addConstraint(Sketcher.Constraint("Vertical", 19))
sketch7.addConstraint(Sketcher.Constraint("Equal", 2, 8))
sketch7.addConstraint(Sketcher.Constraint("Equal", 8, 13))
sketch7.addConstraint(Sketcher.Constraint("Equal", 13, 17))
sketch7.addConstraint(Sketcher.Constraint("Symmetric", 8, 3, 13, 3, -1, 1))
sketch7.addConstraint(Sketcher.Constraint("Symmetric", 2, 3, 17, 3, -1, 1))
sketch7.addConstraint(Sketcher.Constraint("Symmetric", 5, 2, 10, 2, -1, 1))
sketch7.addConstraint(Sketcher.Constraint("Symmetric", 0, 2, 15, 2, -1, 1))
sketch7.addConstraint(Sketcher.Constraint("Symmetric", 3, 2, 18, 2, -1, 1))
sketch7.addConstraint(Sketcher.Constraint("Symmetric", 2, 3, 8, 3, -2))
sketch7.addConstraint(Sketcher.Constraint("Symmetric", 4, 2, 5, 2, -2))
sketch7.addConstraint(Sketcher.Constraint("Horizontal", 8, 3, 2, 2))
sketch7.addConstraint(Sketcher.Constraint("Horizontal", 3, 2, 6, 2))
sketch7.addConstraint(Sketcher.Constraint("Horizontal", 17, 3, 11, 2))
sketch7.addConstraint(Sketcher.Constraint("Vertical", 13, 3, 0, 2))
sketch7.addConstraint(Sketcher.Constraint("Vertical", 17, 3, 8, 2))
sketch7.addConstraint(Sketcher.Constraint("Vertical", 1, 2, 13, 2))
sketch7.addConstraint(Sketcher.Constraint("Equal", 18, 1))
sketch7.addConstraint(Sketcher.Constraint("Radius", 2, 1.4))
sketch7.addConstraint(Sketcher.Constraint("DistanceX", 0, 2, 0, 1, 5.0))
sketch7.addConstraint(Sketcher.Constraint("DistanceX", -1, 1, 2, 3, 5.23))
sketch7.addConstraint(Sketcher.Constraint("DistanceY", -1, 1, 2, 3, 8.43))
pocket6 = doc.addObject("PartDesign::Pocket", "Pocket005")
body.addObject(pocket6)
pocket6.Profile = sketch7
pocket6.Length = 1.1
pocket6.Reversed = True
doc.recompute()

fillet = doc.addObject("PartDesign::Fillet", "Fillet")
body.addObject(fillet)
fillet.Base = (pocket6, edges_at(pocket6, [(2.72, 11.17, 3.85), (-2.72, 11.17, 3.85)]))
fillet.Radius = 1
doc.recompute()

fillet2 = doc.addObject("PartDesign::Fillet", "Fillet001")
body.addObject(fillet2)
fillet2.Base = (fillet, edges_at(fillet, [
    (7.94, 11.17, 4.4),
    (-7.94, 11.17, 4.4),
    (-7.94, -11.17, 4.4),
    (7.94, -11.17, 4.4),
]))
fillet2.Radius = 2
doc.recompute()

fillet3 = doc.addObject("PartDesign::Fillet", "Fillet002")
body.addObject(fillet3)
fillet3.Base = (fillet2, edges_at(fillet2, [(2.72, 8.67, 4.11), (-2.72, 8.67, 4.11)]))
fillet3.Radius = 0.5
body2 = doc.addObject("PartDesign::Body", "Body001")
doc.recompute()

body.Placement = App.Placement(V(0, 9.33, 43.08), App.Rotation(V(1, 0, 0), 270))
boolean = doc.addObject("PartDesign::Boolean", "Boolean")
body2.addObject(boolean)
boolean.Type = "Fuse"
boolean.addObjects([body])

doc.recompute()
